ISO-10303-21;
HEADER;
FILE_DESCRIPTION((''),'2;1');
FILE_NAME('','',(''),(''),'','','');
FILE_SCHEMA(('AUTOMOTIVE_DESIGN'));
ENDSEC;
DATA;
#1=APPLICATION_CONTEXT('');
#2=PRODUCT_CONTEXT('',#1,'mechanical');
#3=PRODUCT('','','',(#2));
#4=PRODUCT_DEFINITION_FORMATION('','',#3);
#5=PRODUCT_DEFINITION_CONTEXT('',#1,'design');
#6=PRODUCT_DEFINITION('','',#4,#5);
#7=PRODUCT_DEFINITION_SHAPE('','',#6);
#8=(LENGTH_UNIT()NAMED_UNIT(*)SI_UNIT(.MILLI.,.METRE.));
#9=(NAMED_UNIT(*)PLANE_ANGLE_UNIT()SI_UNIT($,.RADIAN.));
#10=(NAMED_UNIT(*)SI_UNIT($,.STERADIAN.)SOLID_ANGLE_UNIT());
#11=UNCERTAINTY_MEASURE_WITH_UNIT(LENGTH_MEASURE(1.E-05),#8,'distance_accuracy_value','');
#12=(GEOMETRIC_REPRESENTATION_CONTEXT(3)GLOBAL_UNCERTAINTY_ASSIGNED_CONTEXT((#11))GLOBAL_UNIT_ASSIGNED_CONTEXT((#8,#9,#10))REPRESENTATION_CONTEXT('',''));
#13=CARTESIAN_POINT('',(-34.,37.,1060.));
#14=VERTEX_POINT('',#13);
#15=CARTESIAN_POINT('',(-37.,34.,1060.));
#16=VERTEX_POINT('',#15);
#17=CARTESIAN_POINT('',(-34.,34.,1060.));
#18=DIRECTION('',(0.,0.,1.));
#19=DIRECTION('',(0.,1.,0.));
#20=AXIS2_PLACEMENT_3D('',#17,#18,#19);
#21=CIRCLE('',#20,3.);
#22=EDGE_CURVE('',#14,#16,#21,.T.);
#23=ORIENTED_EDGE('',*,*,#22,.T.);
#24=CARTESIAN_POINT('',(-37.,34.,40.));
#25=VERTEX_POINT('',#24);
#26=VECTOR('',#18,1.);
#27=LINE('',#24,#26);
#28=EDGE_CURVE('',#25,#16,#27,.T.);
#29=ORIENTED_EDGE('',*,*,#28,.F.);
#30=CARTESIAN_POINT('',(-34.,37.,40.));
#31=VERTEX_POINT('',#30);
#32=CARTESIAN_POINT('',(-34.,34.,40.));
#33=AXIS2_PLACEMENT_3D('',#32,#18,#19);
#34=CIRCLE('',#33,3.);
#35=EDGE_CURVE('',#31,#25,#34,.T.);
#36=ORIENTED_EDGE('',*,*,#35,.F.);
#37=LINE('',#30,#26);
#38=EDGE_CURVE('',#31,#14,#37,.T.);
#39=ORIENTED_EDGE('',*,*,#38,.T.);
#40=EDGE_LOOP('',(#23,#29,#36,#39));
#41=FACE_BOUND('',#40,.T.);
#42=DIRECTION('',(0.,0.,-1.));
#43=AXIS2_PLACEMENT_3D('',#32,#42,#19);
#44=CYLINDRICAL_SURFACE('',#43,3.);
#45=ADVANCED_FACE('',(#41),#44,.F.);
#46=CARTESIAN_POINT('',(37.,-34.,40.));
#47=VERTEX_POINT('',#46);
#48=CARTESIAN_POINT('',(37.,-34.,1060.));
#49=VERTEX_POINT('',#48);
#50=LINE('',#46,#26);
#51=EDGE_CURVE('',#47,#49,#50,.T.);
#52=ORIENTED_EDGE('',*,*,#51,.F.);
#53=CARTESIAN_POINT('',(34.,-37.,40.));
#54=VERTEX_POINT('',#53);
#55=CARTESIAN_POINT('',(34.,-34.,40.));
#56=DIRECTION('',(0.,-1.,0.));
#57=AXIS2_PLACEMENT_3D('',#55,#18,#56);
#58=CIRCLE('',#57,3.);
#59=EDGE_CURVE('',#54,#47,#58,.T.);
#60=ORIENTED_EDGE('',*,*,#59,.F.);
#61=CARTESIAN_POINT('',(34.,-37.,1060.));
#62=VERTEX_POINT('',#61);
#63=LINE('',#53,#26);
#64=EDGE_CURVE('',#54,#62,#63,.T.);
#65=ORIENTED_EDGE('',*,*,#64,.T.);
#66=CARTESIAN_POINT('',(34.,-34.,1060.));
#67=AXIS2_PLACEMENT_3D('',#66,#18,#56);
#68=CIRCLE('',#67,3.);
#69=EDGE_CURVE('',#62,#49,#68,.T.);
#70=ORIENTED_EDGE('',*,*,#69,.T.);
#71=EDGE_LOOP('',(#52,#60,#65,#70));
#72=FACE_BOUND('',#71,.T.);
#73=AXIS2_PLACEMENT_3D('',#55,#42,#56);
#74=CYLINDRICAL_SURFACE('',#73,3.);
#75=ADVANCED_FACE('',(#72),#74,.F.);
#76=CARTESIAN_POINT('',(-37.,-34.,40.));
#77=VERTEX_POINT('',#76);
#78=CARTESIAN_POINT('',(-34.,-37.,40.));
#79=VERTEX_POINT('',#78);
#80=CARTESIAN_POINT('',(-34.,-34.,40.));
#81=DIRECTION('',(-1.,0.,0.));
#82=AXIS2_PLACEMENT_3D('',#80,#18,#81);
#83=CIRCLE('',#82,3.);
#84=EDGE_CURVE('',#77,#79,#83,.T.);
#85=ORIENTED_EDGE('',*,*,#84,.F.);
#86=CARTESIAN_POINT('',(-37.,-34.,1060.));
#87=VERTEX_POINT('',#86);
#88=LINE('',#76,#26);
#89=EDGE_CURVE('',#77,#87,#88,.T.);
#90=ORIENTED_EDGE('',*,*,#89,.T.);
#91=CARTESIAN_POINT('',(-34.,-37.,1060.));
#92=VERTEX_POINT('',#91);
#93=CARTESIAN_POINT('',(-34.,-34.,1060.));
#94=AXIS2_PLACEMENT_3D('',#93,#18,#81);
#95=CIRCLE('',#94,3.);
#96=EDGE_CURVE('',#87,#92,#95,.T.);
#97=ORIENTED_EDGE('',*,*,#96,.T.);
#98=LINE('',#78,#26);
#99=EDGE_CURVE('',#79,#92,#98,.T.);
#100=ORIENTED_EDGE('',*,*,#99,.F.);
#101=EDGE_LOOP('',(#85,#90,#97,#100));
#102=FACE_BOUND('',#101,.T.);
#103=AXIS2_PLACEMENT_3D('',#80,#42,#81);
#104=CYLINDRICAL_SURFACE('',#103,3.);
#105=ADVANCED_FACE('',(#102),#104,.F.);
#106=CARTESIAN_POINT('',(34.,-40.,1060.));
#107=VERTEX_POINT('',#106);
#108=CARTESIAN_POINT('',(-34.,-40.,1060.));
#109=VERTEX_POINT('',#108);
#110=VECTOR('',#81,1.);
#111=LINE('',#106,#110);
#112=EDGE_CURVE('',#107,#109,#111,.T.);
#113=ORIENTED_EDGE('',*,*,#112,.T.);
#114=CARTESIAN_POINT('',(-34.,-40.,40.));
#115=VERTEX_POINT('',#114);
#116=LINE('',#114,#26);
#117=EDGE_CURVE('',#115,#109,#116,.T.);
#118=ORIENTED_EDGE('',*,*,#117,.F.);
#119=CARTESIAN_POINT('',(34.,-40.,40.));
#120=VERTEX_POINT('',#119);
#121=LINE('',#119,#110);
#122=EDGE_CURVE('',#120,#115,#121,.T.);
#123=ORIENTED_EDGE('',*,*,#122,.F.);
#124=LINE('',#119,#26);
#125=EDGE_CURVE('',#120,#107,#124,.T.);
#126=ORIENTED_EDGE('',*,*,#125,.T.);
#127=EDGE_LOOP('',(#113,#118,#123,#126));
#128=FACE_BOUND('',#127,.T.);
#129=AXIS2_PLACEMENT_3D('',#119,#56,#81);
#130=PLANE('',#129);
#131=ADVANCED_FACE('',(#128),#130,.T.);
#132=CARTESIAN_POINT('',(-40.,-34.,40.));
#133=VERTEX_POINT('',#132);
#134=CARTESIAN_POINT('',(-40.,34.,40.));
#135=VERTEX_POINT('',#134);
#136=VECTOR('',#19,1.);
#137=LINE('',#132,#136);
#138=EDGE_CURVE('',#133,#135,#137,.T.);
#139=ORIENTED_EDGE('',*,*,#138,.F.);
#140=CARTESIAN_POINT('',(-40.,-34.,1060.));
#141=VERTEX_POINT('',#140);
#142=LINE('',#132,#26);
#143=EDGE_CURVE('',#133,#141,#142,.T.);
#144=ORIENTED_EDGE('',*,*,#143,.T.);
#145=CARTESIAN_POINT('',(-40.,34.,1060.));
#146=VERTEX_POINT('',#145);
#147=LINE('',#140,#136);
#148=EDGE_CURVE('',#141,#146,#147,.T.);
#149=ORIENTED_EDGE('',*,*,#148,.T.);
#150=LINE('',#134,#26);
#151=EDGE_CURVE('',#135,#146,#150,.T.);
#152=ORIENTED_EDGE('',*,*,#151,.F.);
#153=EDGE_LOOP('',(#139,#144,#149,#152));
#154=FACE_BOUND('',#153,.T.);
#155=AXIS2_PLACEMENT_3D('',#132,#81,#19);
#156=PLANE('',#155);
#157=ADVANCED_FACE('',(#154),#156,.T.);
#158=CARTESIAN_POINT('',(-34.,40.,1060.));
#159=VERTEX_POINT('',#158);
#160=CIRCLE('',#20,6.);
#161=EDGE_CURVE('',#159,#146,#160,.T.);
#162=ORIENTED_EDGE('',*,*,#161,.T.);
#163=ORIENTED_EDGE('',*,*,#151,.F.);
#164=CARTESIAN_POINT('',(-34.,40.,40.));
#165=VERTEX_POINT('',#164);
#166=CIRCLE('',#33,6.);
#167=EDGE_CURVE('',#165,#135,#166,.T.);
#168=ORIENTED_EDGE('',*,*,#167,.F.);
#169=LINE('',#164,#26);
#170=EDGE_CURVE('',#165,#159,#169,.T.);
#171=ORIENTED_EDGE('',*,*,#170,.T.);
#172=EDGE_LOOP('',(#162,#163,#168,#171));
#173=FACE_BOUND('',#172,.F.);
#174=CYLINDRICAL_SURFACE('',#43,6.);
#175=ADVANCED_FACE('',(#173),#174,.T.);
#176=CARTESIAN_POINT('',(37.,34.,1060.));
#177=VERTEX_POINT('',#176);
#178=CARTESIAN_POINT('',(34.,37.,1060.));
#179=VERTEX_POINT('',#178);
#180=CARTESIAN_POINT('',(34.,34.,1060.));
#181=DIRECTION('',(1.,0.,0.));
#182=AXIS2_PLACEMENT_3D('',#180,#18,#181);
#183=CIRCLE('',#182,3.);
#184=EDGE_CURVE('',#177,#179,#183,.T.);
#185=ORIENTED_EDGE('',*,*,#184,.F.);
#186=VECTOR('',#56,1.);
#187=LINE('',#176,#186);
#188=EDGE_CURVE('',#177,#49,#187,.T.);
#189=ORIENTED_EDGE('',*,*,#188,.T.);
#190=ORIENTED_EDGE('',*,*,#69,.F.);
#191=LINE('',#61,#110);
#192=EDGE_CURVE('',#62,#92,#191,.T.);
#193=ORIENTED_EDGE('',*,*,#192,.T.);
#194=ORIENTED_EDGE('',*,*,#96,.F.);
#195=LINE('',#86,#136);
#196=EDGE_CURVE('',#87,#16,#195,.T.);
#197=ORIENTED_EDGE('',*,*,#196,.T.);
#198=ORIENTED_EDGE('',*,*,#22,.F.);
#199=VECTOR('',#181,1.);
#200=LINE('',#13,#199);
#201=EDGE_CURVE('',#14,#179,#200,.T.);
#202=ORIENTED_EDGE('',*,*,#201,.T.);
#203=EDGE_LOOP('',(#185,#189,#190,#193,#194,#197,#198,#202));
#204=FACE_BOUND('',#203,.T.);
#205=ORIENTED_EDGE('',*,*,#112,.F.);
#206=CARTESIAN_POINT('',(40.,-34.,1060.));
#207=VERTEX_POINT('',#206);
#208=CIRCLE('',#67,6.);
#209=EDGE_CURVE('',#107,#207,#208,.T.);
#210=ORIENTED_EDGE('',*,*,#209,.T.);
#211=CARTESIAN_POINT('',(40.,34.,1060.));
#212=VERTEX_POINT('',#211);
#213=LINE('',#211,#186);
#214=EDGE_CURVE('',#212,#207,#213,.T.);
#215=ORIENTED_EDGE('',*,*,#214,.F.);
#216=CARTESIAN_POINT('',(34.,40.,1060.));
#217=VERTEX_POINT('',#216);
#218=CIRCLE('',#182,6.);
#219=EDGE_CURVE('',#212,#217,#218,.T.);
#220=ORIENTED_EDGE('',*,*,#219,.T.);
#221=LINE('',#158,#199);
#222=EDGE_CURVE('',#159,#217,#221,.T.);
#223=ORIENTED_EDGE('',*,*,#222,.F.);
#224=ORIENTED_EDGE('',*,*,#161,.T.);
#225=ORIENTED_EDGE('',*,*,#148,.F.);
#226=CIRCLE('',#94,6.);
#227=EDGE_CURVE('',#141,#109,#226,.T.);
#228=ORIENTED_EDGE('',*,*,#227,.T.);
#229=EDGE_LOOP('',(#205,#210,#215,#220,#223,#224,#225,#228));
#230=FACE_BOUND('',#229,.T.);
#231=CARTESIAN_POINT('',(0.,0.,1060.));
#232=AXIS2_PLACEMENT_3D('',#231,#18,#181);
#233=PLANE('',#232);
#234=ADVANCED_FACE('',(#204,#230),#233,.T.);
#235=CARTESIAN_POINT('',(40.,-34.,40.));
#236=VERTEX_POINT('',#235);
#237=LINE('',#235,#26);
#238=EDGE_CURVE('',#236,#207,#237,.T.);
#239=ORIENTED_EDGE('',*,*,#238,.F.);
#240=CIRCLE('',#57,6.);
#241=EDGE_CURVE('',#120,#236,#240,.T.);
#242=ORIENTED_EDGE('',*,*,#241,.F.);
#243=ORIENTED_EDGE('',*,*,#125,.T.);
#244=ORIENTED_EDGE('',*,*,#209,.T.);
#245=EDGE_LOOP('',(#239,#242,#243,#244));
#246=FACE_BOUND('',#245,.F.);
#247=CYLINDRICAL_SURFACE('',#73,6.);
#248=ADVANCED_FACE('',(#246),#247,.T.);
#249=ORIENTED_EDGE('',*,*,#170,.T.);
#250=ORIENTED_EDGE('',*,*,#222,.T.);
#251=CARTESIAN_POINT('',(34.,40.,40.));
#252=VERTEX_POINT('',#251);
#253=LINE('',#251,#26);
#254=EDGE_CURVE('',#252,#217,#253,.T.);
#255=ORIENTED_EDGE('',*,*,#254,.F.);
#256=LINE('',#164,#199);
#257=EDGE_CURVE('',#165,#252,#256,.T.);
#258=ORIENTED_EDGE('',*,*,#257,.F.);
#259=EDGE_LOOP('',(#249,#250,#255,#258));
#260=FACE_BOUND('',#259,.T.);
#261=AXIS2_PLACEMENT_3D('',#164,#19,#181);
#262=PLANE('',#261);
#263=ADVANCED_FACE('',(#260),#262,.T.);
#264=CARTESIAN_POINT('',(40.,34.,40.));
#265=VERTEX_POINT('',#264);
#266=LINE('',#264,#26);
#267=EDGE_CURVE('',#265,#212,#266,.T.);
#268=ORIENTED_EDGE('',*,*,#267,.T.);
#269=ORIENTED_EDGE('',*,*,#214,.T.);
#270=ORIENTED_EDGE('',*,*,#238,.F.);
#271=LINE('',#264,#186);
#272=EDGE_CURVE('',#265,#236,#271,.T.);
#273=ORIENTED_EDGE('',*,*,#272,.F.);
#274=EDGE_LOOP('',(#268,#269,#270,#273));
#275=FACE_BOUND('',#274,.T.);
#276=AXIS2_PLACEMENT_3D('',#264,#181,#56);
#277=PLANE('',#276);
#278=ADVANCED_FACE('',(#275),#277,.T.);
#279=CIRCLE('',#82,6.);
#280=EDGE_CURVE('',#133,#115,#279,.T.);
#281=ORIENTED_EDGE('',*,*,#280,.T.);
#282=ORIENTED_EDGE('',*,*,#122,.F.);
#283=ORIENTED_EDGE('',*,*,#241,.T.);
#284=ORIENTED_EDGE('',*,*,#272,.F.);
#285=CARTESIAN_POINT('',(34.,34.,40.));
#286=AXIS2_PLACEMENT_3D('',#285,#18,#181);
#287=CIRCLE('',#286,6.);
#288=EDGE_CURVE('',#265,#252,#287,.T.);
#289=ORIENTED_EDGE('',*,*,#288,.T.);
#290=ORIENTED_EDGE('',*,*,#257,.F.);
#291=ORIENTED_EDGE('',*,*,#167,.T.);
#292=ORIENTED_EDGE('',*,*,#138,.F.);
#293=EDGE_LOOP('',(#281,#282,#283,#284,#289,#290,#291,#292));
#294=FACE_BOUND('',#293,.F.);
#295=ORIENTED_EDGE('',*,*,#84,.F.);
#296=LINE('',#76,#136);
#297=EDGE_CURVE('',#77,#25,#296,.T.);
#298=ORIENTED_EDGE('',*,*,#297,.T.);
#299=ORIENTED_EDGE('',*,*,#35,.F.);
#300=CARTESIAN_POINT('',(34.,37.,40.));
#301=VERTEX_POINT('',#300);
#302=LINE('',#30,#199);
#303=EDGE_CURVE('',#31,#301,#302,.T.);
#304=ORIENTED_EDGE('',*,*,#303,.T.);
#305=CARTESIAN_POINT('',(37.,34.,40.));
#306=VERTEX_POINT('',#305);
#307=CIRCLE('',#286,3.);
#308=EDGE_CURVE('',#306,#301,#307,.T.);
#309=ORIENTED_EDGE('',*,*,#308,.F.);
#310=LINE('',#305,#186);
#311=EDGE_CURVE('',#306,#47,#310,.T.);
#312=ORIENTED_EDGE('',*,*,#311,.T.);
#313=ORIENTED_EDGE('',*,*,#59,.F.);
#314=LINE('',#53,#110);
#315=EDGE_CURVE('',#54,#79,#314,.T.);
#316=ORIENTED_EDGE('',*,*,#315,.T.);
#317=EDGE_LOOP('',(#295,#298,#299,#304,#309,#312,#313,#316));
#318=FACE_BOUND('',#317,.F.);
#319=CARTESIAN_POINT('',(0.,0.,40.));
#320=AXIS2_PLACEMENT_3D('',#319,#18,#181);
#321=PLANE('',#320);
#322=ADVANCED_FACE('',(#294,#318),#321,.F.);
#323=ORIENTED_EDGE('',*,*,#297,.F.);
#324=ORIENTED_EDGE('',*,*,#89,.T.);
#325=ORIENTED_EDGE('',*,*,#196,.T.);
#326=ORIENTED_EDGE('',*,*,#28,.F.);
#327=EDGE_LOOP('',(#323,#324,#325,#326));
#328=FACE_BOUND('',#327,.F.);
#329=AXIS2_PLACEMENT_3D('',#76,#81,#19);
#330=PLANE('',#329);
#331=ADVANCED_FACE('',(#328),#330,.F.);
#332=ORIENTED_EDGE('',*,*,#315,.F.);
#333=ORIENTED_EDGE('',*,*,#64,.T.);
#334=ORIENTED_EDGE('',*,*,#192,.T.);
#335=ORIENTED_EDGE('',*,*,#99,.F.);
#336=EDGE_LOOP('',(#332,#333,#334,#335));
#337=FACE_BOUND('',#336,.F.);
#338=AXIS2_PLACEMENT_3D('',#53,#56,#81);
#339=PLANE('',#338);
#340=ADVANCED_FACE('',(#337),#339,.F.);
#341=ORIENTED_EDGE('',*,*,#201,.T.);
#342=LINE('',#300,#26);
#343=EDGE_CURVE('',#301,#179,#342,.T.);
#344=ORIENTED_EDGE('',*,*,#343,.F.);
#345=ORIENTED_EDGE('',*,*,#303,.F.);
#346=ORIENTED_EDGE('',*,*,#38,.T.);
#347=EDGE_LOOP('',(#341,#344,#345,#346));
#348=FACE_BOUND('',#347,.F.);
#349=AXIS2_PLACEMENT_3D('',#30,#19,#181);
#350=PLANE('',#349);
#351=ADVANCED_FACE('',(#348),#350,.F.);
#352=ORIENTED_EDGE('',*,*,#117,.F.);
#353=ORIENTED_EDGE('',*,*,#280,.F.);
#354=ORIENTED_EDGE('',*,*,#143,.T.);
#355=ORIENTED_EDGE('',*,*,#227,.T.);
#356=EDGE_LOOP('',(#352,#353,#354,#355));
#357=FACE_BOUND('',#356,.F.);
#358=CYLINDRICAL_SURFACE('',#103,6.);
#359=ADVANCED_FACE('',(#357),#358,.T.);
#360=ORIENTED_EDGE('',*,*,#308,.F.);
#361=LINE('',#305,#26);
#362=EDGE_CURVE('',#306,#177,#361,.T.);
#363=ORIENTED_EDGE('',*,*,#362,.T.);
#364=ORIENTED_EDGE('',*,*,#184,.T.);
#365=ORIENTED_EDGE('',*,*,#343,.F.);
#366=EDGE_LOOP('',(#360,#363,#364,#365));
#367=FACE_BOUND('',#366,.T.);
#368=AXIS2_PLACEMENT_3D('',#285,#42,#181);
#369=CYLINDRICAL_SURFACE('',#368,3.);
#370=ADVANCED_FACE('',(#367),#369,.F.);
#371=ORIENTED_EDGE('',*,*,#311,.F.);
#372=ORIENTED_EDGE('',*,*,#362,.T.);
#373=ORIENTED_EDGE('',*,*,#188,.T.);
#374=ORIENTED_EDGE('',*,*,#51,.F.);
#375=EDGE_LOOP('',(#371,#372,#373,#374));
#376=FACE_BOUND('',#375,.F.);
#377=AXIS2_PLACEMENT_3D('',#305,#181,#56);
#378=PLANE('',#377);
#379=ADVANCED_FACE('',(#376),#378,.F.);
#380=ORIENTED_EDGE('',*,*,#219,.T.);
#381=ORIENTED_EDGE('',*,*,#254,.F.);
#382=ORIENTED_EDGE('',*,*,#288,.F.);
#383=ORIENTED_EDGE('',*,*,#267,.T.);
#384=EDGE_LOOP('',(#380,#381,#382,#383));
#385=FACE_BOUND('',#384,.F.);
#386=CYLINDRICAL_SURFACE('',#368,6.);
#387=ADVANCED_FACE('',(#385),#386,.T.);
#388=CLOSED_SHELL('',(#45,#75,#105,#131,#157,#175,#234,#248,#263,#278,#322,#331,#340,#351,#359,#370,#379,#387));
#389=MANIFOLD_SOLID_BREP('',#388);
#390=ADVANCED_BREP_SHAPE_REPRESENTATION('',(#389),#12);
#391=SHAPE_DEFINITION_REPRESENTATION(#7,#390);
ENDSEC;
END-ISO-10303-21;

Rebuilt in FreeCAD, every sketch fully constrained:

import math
import FreeCAD as App
import Part
import Sketcher
Q = App.Units.Quantity

doc = App.newDocument("Part")
body = doc.addObject("PartDesign::Body", "Body")

sketch1 = doc.addObject("Sketcher::SketchObject", "Sketch")
body.addObject(sketch1)
sketch1.AttachmentSupport = (doc.XY_Plane, [""])
sketch1.MapMode = "FlatFace"
sketch1.AttachmentOffset = App.Placement(App.Vector(0, 0, 40), App.Rotation())
sketch1.addGeometry(Part.LineSegment(App.Vector(-40, 34, 0), App.Vector(-40, -34, 0)), False)
sketch1.addGeometry(Part.ArcOfCircle(Part.Circle(App.Vector(-34, -34, 0), App.Vector(0, 0, 1), 6), math.radians(180), math.radians(270)), False)
sketch1.addGeometry(Part.LineSegment(App.Vector(-34, -40, 0), App.Vector(34, -40, 0)), False)
sketch1.addGeometry(Part.ArcOfCircle(Part.Circle(App.Vector(34, -34, 0), App.Vector(0, 0, 1), 6), math.radians(-90), math.radians(0)), False)
sketch1.addGeometry(Part.LineSegment(App.Vector(40, -34, 0), App.Vector(40, 34, 0)), False)
sketch1.addGeometry(Part.ArcOfCircle(Part.Circle(App.Vector(34, 34, 0), App.Vector(0, 0, 1), 6), math.radians(0), math.radians(90)), False)
sketch1.addGeometry(Part.LineSegment(App.Vector(34, 40, 0), App.Vector(-34, 40, 0)), False)
sketch1.addGeometry(Part.ArcOfCircle(Part.Circle(App.Vector(-34, 34, 0), App.Vector(0, 0, 1), 6), math.radians(90), math.radians(180)), False)
sketch1.addGeometry(Part.ArcOfCircle(Part.Circle(App.Vector(-34, 34, 0), App.Vector(0, 0, 1), 3), math.radians(90), math.radians(180)), False)
sketch1.addGeometry(Part.LineSegment(App.Vector(-34, 37, 0), App.Vector(34, 37, 0)), False)
sketch1.addGeometry(Part.ArcOfCircle(Part.Circle(App.Vector(34, 34, 0), App.Vector(0, 0, 1), 3), math.radians(0), math.radians(90)), False)
sketch1.addGeometry(Part.LineSegment(App.Vector(37, 34, 0), App.Vector(37, -34, 0)), False)
sketch1.addGeometry(Part.ArcOfCircle(Part.Circle(App.Vector(34, -34, 0), App.Vector(0, 0, 1), 3), math.radians(-90), math.radians(0)), False)
sketch1.addGeometry(Part.LineSegment(App.Vector(34, -37, 0), App.Vector(-34, -37, 0)), False)
sketch1.addGeometry(Part.ArcOfCircle(Part.Circle(App.Vector(-34, -34, 0), App.Vector(0, 0, 1), 3), math.radians(180), math.radians(270)), False)
sketch1.addGeometry(Part.LineSegment(App.Vector(-37, -34, 0), App.Vector(-37, 34, 0)), False)
sketch1.addConstraint(Sketcher.Constraint("Tangent", 0, 2, 1, 1))
sketch1.addConstraint(Sketcher.Constraint("Tangent", 1, 2, 2, 1))
sketch1.addConstraint(Sketcher.Constraint("Tangent", 2, 2, 3, 1))
sketch1.addConstraint(Sketcher.Constraint("Tangent", 3, 2, 4, 1))
sketch1.addConstraint(Sketcher.Constraint("Tangent", 4, 2, 5, 1))
sketch1.addConstraint(Sketcher.Constraint("Tangent", 5, 2, 6, 1))
sketch1.addConstraint(Sketcher.Constraint("Tangent", 6, 2, 7, 1))
sketch1.addConstraint(Sketcher.Constraint("Tangent", 7, 2, 0, 1))
sketch1.addConstraint(Sketcher.Constraint("Tangent", 8, 1, 9, 1))
sketch1.addConstraint(Sketcher.Constraint("Tangent", 9, 2, 10, 2))
sketch1.addConstraint(Sketcher.Constraint("Tangent", 10, 1, 11, 1))
sketch1.addConstraint(Sketcher.Constraint("Tangent", 11, 2, 12, 2))
sketch1.addConstraint(Sketcher.Constraint("Tangent", 12, 1, 13, 1))
sketch1.addConstraint(Sketcher.Constraint("Tangent", 13, 2, 14, 2))
sketch1.addConstraint(Sketcher.Constraint("Tangent", 14, 1, 15, 1))
sketch1.addConstraint(Sketcher.Constraint("Tangent", 15, 2, 8, 2))
sketch1.addConstraint(Sketcher.Constraint("Vertical", 0))
sketch1.addConstraint(Sketcher.Constraint("Horizontal", 2))
sketch1.addConstraint(Sketcher.Constraint("Vertical", 4))
sketch1.addConstraint(Sketcher.Constraint("Horizontal", 6))
sketch1.addConstraint(Sketcher.Constraint("Horizontal", 9))
sketch1.addConstraint(Sketcher.Constraint("Vertical", 11))
sketch1.addConstraint(Sketcher.Constraint("Horizontal", 13))
sketch1.addConstraint(Sketcher.Constraint("Vertical", 15))
sketch1.addConstraint(Sketcher.Constraint("Coincident", 8, 3, 7, 3))
sketch1.addConstraint(Sketcher.Constraint("Coincident", 10, 3, 5, 3))
sketch1.addConstraint(Sketcher.Constraint("Coincident", 12, 3, 3, 3))
sketch1.addConstraint(Sketcher.Constraint("Equal", 1, 3))
sketch1.addConstraint(Sketcher.Constraint("Equal", 3, 5))
sketch1.addConstraint(Sketcher.Constraint("Equal", 5, 7))
sketch1.addConstraint(Sketcher.Constraint("Equal", 12, 14))
sketch1.addConstraint(Sketcher.Constraint("Symmetric", 1, 3, 5, 3, -1, 1))
sketch1.addConstraint(Sketcher.Constraint("Equal", 13, 0))
sketch1.addConstraint(Sketcher.Constraint("Radius", 1, Q("6 mm")))
sketch1.addConstraint(Sketcher.Constraint("Radius", 8, Q("3 mm")))
sketch1.addConstraint(Sketcher.Constraint("DistanceX", 0, 2, -1, 1, Q("40 mm")))
pad1 = doc.addObject("PartDesign::Pad", "Pad")
body.addObject(pad1)
pad1.Profile = sketch1
pad1.Length = 1020

doc.recompute()
